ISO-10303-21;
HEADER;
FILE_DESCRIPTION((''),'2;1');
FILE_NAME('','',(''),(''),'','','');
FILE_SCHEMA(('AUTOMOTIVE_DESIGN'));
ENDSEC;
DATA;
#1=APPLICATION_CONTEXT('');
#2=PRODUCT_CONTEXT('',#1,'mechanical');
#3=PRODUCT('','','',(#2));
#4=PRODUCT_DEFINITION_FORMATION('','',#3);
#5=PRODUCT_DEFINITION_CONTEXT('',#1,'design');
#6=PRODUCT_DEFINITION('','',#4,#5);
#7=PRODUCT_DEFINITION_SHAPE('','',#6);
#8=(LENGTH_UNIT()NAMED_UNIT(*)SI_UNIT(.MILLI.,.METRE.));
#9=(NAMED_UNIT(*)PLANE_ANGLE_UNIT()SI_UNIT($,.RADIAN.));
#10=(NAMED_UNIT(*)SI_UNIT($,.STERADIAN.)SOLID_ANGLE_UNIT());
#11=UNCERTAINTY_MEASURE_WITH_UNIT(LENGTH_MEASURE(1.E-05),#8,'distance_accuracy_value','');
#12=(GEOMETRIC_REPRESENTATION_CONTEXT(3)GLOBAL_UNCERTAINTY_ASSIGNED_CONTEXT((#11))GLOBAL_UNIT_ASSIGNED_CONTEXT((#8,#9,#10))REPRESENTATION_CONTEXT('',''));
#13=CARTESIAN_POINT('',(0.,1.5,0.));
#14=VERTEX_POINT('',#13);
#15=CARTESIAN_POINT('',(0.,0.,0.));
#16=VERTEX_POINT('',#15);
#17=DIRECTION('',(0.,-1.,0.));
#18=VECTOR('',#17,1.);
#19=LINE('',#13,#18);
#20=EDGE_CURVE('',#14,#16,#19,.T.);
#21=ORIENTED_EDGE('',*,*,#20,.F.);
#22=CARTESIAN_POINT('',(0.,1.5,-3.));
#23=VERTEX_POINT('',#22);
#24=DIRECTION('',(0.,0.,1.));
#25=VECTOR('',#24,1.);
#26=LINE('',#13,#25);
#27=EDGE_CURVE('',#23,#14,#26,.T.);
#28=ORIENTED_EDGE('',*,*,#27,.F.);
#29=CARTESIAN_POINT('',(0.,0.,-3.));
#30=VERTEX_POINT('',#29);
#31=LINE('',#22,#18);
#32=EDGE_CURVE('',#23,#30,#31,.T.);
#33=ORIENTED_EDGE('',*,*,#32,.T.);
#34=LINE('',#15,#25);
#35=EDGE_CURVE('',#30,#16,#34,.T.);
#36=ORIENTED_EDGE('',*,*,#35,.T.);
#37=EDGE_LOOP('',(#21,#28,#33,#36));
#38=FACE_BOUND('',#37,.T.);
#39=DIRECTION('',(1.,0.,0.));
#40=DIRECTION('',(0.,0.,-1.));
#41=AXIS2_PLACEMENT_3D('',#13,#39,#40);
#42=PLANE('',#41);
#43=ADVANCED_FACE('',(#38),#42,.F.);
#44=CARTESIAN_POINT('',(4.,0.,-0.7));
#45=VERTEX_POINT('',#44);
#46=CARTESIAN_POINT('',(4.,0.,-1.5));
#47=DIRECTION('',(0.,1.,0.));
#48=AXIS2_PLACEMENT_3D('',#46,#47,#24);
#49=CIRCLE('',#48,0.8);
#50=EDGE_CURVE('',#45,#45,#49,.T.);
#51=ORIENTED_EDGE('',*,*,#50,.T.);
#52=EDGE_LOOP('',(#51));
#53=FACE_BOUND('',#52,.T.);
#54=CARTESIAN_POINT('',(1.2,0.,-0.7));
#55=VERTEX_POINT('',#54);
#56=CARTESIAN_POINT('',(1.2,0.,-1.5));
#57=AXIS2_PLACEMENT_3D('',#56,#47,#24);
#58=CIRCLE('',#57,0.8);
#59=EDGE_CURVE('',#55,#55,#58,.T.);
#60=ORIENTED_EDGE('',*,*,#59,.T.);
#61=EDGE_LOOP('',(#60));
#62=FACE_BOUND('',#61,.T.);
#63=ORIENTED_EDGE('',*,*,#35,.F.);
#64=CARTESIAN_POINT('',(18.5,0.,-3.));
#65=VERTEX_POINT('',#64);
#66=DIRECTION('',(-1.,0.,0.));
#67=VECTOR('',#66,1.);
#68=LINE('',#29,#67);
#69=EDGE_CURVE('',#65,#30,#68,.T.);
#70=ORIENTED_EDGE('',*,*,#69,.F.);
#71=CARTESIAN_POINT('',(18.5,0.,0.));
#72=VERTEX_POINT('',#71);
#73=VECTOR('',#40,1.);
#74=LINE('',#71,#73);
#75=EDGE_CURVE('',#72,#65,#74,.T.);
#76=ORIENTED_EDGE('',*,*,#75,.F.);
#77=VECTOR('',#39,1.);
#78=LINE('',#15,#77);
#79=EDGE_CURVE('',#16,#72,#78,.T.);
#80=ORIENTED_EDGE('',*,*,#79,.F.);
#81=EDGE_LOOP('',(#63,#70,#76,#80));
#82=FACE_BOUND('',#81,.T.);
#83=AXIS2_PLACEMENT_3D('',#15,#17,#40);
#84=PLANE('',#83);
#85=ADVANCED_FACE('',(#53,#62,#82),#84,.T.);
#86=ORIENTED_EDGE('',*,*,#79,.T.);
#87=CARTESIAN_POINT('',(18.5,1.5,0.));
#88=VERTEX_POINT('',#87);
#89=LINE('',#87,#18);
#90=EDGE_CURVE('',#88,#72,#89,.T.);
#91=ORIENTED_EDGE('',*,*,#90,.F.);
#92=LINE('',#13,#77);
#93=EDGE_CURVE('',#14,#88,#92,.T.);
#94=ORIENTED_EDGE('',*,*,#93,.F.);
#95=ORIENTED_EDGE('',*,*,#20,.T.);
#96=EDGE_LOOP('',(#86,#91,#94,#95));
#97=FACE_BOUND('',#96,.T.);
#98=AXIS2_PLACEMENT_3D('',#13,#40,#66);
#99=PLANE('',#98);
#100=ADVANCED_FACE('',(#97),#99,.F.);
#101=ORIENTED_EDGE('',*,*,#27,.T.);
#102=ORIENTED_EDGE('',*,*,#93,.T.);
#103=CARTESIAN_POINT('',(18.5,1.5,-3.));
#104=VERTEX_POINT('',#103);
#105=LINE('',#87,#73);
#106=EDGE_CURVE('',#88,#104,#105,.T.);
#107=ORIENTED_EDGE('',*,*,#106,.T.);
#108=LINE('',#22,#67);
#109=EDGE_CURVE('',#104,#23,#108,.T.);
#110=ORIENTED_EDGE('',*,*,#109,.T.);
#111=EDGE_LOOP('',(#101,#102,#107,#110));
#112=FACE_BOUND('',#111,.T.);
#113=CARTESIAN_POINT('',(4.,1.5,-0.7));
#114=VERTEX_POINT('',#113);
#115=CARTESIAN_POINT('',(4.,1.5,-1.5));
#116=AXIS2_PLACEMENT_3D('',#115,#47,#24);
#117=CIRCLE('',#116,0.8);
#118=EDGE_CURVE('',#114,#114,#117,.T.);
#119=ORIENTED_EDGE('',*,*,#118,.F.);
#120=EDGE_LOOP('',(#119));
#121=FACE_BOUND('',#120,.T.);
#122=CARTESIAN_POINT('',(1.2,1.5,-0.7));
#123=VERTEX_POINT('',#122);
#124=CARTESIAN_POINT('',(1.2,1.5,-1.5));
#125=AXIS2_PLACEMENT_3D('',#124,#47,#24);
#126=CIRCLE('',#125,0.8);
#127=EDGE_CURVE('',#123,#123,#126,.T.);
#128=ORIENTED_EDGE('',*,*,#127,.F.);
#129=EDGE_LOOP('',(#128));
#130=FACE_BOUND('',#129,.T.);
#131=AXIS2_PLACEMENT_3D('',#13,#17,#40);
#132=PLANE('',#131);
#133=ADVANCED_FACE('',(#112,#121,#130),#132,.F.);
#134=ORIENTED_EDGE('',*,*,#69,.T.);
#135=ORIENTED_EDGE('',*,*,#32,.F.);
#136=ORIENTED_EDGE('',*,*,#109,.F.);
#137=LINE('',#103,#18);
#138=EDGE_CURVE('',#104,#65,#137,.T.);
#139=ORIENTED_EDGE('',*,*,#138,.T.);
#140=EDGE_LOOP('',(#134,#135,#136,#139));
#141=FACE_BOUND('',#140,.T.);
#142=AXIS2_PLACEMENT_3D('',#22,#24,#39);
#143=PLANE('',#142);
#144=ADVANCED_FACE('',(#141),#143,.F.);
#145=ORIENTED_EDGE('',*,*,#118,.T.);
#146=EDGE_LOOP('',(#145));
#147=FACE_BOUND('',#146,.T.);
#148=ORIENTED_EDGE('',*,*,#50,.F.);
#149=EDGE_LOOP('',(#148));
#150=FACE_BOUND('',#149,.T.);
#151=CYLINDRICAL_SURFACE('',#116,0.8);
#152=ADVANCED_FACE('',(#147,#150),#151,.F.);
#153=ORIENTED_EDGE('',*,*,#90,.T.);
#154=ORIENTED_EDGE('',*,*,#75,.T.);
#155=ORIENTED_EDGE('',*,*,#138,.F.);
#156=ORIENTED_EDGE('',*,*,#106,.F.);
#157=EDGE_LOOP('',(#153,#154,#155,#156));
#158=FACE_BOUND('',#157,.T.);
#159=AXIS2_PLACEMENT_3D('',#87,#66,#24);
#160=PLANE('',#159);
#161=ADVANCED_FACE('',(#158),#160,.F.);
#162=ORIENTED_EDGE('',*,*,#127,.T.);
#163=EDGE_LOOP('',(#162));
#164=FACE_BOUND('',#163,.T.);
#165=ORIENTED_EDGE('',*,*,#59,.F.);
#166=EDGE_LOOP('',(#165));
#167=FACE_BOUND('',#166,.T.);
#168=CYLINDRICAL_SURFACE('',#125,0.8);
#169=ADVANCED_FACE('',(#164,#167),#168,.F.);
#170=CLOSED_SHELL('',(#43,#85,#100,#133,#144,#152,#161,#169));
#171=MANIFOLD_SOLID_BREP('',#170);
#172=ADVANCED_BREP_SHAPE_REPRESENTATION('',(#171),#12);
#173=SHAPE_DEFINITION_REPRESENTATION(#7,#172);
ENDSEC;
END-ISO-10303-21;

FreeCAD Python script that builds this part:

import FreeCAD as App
import Part
import Sketcher
Q = App.Units.Quantity

doc = App.newDocument("Part")
body = doc.addObject("PartDesign::Body", "Body")

sketch1 = body.newObject("Sketcher::SketchObject", "Sketch")
sketch1.AttachmentSupport = (doc.getObject("XZ_Plane"), [""])
sketch1.MapMode = "FlatFace"
sketch1.addGeometry([
    Part.LineSegment(App.Vector(0, -3, 0), App.Vector(0, 0, 0)),
    Part.LineSegment(App.Vector(0, 0, 0), App.Vector(18.5, 0, 0)),
    Part.LineSegment(App.Vector(18.5, 0, 0), App.Vector(18.5, -3, 0)),
    Part.LineSegment(App.Vector(18.5, -3, 0), App.Vector(0, -3, 0)),
], False)
sketch1.addConstraint([
    Sketcher.Constraint("Coincident", 0, 2, 1, 1),
    Sketcher.Constraint("Coincident", 1, 2, 2, 1),
    Sketcher.Constraint("Coincident", 2, 2, 3, 1),
    Sketcher.Constraint("Coincident", 3, 2, 0, 1),
    Sketcher.Constraint("Vertical", 0),
    Sketcher.Constraint("Horizontal", 1),
    Sketcher.Constraint("Vertical", 2),
    Sketcher.Constraint("Horizontal", 3),
    Sketcher.Constraint("Coincident", 0, 2, -1, 1),
    Sketcher.Constraint("DistanceY", 0, 1, 0, 2, Q("3 mm")),
    Sketcher.Constraint("DistanceX", 1, 1, 1, 2, Q("18.5 mm")),
])
pad1 = body.newObject("PartDesign::Pad", "Pad")
pad1.Profile = sketch1
pad1.Length = 1.5
pad1.Reversed = True

sketch2 = body.newObject("Sketcher::SketchObject", "Sketch001")
sketch2.AttachmentSupport = (doc.getObject("XZ_Plane"), [""])
sketch2.MapMode = "FlatFace"
sketch2.AttachmentOffset = App.Placement(App.Vector(0, 0, -1.5), App.Rotation())
sketch2.addGeometry([
    Part.Circle(App.Vector(1.2, -1.5, 0), App.Vector(0, 0, 1), 0.8),
    Part.Circle(App.Vector(4, -1.5, 0), App.Vector(0, 0, 1), 0.8),
], False)
sketch2.addConstraint([
    Sketcher.Constraint("Equal", 0, 1),
    Sketcher.Constraint("Horizontal", 0, 3, 1, 3),
    Sketcher.Constraint("Diameter", 0, Q("1.6 mm")),
    Sketcher.Constraint("DistanceX", -1, 1, 1, 3, Q("4 mm")),
    Sketcher.Constraint("DistanceX", -1, 1, 0, 3, Q("1.2 mm")),
    Sketcher.Constraint("DistanceY", 0, 3, -1, 1, Q("1.5 mm")),
])
doc.recompute()
hole = body.newObject("PartDesign::Hole", "Hole")
hole.Profile = sketch2
hole.ThreadType = "None"
hole.Diameter = 1.6
hole.DepthType = "ThroughAll"
hole.Reversed = True

doc.recompute()
